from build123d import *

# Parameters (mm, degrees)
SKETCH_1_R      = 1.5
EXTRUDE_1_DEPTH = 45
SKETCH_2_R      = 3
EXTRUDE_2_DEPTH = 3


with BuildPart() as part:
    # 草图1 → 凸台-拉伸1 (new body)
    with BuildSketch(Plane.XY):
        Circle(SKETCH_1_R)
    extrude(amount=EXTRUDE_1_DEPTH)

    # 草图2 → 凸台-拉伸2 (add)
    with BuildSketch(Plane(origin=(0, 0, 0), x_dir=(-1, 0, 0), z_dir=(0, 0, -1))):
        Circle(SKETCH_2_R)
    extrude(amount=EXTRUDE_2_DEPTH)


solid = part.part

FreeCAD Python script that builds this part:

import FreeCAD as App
import Part
import Sketcher

V = App.Vector
Q = App.Units.Quantity

doc = App.newDocument("Part")
body = doc.addObject("PartDesign::Body", "Body")

sketch1 = body.newObject("Sketcher::SketchObject", "Sketch")
sketch1.AttachmentSupport = (doc.getObject("XY_Plane"), [""])
sketch1.MapMode = "FlatFace"
sketch1.addGeometry(Part.Circle(V(0, 0, 0), V(0, 0, 1), 1.5), False)
sketch1.addConstraint([
    Sketcher.Constraint("Coincident", 0, 3, -1, 1),
    Sketcher.Constraint("Diameter", 0, Q("3 mm")),
])
pad1 = body.newObject("PartDesign::Pad", "Pad")
pad1.Profile = sketch1
pad1.Length = 45

sketch2 = body.newObject("Sketcher::SketchObject", "Sketch001")
sketch2.AttachmentSupport = (doc.getObject("XY_Plane"), [""])
sketch2.MapMode = "FlatFace"
sketch2.addGeometry(Part.Circle(V(0, 0, 0), V(0, 0, 1), 3), False)
sketch2.addConstraint([
    Sketcher.Constraint("Coincident", 0, 3, -1, 1),
    Sketcher.Constraint("Diameter", 0, Q("6 mm")),
])
pad2 = body.newObject("PartDesign::Pad", "Pad001")
pad2.Profile = sketch2
pad2.Length = 3
pad2.Reversed = True

doc.recompute()
